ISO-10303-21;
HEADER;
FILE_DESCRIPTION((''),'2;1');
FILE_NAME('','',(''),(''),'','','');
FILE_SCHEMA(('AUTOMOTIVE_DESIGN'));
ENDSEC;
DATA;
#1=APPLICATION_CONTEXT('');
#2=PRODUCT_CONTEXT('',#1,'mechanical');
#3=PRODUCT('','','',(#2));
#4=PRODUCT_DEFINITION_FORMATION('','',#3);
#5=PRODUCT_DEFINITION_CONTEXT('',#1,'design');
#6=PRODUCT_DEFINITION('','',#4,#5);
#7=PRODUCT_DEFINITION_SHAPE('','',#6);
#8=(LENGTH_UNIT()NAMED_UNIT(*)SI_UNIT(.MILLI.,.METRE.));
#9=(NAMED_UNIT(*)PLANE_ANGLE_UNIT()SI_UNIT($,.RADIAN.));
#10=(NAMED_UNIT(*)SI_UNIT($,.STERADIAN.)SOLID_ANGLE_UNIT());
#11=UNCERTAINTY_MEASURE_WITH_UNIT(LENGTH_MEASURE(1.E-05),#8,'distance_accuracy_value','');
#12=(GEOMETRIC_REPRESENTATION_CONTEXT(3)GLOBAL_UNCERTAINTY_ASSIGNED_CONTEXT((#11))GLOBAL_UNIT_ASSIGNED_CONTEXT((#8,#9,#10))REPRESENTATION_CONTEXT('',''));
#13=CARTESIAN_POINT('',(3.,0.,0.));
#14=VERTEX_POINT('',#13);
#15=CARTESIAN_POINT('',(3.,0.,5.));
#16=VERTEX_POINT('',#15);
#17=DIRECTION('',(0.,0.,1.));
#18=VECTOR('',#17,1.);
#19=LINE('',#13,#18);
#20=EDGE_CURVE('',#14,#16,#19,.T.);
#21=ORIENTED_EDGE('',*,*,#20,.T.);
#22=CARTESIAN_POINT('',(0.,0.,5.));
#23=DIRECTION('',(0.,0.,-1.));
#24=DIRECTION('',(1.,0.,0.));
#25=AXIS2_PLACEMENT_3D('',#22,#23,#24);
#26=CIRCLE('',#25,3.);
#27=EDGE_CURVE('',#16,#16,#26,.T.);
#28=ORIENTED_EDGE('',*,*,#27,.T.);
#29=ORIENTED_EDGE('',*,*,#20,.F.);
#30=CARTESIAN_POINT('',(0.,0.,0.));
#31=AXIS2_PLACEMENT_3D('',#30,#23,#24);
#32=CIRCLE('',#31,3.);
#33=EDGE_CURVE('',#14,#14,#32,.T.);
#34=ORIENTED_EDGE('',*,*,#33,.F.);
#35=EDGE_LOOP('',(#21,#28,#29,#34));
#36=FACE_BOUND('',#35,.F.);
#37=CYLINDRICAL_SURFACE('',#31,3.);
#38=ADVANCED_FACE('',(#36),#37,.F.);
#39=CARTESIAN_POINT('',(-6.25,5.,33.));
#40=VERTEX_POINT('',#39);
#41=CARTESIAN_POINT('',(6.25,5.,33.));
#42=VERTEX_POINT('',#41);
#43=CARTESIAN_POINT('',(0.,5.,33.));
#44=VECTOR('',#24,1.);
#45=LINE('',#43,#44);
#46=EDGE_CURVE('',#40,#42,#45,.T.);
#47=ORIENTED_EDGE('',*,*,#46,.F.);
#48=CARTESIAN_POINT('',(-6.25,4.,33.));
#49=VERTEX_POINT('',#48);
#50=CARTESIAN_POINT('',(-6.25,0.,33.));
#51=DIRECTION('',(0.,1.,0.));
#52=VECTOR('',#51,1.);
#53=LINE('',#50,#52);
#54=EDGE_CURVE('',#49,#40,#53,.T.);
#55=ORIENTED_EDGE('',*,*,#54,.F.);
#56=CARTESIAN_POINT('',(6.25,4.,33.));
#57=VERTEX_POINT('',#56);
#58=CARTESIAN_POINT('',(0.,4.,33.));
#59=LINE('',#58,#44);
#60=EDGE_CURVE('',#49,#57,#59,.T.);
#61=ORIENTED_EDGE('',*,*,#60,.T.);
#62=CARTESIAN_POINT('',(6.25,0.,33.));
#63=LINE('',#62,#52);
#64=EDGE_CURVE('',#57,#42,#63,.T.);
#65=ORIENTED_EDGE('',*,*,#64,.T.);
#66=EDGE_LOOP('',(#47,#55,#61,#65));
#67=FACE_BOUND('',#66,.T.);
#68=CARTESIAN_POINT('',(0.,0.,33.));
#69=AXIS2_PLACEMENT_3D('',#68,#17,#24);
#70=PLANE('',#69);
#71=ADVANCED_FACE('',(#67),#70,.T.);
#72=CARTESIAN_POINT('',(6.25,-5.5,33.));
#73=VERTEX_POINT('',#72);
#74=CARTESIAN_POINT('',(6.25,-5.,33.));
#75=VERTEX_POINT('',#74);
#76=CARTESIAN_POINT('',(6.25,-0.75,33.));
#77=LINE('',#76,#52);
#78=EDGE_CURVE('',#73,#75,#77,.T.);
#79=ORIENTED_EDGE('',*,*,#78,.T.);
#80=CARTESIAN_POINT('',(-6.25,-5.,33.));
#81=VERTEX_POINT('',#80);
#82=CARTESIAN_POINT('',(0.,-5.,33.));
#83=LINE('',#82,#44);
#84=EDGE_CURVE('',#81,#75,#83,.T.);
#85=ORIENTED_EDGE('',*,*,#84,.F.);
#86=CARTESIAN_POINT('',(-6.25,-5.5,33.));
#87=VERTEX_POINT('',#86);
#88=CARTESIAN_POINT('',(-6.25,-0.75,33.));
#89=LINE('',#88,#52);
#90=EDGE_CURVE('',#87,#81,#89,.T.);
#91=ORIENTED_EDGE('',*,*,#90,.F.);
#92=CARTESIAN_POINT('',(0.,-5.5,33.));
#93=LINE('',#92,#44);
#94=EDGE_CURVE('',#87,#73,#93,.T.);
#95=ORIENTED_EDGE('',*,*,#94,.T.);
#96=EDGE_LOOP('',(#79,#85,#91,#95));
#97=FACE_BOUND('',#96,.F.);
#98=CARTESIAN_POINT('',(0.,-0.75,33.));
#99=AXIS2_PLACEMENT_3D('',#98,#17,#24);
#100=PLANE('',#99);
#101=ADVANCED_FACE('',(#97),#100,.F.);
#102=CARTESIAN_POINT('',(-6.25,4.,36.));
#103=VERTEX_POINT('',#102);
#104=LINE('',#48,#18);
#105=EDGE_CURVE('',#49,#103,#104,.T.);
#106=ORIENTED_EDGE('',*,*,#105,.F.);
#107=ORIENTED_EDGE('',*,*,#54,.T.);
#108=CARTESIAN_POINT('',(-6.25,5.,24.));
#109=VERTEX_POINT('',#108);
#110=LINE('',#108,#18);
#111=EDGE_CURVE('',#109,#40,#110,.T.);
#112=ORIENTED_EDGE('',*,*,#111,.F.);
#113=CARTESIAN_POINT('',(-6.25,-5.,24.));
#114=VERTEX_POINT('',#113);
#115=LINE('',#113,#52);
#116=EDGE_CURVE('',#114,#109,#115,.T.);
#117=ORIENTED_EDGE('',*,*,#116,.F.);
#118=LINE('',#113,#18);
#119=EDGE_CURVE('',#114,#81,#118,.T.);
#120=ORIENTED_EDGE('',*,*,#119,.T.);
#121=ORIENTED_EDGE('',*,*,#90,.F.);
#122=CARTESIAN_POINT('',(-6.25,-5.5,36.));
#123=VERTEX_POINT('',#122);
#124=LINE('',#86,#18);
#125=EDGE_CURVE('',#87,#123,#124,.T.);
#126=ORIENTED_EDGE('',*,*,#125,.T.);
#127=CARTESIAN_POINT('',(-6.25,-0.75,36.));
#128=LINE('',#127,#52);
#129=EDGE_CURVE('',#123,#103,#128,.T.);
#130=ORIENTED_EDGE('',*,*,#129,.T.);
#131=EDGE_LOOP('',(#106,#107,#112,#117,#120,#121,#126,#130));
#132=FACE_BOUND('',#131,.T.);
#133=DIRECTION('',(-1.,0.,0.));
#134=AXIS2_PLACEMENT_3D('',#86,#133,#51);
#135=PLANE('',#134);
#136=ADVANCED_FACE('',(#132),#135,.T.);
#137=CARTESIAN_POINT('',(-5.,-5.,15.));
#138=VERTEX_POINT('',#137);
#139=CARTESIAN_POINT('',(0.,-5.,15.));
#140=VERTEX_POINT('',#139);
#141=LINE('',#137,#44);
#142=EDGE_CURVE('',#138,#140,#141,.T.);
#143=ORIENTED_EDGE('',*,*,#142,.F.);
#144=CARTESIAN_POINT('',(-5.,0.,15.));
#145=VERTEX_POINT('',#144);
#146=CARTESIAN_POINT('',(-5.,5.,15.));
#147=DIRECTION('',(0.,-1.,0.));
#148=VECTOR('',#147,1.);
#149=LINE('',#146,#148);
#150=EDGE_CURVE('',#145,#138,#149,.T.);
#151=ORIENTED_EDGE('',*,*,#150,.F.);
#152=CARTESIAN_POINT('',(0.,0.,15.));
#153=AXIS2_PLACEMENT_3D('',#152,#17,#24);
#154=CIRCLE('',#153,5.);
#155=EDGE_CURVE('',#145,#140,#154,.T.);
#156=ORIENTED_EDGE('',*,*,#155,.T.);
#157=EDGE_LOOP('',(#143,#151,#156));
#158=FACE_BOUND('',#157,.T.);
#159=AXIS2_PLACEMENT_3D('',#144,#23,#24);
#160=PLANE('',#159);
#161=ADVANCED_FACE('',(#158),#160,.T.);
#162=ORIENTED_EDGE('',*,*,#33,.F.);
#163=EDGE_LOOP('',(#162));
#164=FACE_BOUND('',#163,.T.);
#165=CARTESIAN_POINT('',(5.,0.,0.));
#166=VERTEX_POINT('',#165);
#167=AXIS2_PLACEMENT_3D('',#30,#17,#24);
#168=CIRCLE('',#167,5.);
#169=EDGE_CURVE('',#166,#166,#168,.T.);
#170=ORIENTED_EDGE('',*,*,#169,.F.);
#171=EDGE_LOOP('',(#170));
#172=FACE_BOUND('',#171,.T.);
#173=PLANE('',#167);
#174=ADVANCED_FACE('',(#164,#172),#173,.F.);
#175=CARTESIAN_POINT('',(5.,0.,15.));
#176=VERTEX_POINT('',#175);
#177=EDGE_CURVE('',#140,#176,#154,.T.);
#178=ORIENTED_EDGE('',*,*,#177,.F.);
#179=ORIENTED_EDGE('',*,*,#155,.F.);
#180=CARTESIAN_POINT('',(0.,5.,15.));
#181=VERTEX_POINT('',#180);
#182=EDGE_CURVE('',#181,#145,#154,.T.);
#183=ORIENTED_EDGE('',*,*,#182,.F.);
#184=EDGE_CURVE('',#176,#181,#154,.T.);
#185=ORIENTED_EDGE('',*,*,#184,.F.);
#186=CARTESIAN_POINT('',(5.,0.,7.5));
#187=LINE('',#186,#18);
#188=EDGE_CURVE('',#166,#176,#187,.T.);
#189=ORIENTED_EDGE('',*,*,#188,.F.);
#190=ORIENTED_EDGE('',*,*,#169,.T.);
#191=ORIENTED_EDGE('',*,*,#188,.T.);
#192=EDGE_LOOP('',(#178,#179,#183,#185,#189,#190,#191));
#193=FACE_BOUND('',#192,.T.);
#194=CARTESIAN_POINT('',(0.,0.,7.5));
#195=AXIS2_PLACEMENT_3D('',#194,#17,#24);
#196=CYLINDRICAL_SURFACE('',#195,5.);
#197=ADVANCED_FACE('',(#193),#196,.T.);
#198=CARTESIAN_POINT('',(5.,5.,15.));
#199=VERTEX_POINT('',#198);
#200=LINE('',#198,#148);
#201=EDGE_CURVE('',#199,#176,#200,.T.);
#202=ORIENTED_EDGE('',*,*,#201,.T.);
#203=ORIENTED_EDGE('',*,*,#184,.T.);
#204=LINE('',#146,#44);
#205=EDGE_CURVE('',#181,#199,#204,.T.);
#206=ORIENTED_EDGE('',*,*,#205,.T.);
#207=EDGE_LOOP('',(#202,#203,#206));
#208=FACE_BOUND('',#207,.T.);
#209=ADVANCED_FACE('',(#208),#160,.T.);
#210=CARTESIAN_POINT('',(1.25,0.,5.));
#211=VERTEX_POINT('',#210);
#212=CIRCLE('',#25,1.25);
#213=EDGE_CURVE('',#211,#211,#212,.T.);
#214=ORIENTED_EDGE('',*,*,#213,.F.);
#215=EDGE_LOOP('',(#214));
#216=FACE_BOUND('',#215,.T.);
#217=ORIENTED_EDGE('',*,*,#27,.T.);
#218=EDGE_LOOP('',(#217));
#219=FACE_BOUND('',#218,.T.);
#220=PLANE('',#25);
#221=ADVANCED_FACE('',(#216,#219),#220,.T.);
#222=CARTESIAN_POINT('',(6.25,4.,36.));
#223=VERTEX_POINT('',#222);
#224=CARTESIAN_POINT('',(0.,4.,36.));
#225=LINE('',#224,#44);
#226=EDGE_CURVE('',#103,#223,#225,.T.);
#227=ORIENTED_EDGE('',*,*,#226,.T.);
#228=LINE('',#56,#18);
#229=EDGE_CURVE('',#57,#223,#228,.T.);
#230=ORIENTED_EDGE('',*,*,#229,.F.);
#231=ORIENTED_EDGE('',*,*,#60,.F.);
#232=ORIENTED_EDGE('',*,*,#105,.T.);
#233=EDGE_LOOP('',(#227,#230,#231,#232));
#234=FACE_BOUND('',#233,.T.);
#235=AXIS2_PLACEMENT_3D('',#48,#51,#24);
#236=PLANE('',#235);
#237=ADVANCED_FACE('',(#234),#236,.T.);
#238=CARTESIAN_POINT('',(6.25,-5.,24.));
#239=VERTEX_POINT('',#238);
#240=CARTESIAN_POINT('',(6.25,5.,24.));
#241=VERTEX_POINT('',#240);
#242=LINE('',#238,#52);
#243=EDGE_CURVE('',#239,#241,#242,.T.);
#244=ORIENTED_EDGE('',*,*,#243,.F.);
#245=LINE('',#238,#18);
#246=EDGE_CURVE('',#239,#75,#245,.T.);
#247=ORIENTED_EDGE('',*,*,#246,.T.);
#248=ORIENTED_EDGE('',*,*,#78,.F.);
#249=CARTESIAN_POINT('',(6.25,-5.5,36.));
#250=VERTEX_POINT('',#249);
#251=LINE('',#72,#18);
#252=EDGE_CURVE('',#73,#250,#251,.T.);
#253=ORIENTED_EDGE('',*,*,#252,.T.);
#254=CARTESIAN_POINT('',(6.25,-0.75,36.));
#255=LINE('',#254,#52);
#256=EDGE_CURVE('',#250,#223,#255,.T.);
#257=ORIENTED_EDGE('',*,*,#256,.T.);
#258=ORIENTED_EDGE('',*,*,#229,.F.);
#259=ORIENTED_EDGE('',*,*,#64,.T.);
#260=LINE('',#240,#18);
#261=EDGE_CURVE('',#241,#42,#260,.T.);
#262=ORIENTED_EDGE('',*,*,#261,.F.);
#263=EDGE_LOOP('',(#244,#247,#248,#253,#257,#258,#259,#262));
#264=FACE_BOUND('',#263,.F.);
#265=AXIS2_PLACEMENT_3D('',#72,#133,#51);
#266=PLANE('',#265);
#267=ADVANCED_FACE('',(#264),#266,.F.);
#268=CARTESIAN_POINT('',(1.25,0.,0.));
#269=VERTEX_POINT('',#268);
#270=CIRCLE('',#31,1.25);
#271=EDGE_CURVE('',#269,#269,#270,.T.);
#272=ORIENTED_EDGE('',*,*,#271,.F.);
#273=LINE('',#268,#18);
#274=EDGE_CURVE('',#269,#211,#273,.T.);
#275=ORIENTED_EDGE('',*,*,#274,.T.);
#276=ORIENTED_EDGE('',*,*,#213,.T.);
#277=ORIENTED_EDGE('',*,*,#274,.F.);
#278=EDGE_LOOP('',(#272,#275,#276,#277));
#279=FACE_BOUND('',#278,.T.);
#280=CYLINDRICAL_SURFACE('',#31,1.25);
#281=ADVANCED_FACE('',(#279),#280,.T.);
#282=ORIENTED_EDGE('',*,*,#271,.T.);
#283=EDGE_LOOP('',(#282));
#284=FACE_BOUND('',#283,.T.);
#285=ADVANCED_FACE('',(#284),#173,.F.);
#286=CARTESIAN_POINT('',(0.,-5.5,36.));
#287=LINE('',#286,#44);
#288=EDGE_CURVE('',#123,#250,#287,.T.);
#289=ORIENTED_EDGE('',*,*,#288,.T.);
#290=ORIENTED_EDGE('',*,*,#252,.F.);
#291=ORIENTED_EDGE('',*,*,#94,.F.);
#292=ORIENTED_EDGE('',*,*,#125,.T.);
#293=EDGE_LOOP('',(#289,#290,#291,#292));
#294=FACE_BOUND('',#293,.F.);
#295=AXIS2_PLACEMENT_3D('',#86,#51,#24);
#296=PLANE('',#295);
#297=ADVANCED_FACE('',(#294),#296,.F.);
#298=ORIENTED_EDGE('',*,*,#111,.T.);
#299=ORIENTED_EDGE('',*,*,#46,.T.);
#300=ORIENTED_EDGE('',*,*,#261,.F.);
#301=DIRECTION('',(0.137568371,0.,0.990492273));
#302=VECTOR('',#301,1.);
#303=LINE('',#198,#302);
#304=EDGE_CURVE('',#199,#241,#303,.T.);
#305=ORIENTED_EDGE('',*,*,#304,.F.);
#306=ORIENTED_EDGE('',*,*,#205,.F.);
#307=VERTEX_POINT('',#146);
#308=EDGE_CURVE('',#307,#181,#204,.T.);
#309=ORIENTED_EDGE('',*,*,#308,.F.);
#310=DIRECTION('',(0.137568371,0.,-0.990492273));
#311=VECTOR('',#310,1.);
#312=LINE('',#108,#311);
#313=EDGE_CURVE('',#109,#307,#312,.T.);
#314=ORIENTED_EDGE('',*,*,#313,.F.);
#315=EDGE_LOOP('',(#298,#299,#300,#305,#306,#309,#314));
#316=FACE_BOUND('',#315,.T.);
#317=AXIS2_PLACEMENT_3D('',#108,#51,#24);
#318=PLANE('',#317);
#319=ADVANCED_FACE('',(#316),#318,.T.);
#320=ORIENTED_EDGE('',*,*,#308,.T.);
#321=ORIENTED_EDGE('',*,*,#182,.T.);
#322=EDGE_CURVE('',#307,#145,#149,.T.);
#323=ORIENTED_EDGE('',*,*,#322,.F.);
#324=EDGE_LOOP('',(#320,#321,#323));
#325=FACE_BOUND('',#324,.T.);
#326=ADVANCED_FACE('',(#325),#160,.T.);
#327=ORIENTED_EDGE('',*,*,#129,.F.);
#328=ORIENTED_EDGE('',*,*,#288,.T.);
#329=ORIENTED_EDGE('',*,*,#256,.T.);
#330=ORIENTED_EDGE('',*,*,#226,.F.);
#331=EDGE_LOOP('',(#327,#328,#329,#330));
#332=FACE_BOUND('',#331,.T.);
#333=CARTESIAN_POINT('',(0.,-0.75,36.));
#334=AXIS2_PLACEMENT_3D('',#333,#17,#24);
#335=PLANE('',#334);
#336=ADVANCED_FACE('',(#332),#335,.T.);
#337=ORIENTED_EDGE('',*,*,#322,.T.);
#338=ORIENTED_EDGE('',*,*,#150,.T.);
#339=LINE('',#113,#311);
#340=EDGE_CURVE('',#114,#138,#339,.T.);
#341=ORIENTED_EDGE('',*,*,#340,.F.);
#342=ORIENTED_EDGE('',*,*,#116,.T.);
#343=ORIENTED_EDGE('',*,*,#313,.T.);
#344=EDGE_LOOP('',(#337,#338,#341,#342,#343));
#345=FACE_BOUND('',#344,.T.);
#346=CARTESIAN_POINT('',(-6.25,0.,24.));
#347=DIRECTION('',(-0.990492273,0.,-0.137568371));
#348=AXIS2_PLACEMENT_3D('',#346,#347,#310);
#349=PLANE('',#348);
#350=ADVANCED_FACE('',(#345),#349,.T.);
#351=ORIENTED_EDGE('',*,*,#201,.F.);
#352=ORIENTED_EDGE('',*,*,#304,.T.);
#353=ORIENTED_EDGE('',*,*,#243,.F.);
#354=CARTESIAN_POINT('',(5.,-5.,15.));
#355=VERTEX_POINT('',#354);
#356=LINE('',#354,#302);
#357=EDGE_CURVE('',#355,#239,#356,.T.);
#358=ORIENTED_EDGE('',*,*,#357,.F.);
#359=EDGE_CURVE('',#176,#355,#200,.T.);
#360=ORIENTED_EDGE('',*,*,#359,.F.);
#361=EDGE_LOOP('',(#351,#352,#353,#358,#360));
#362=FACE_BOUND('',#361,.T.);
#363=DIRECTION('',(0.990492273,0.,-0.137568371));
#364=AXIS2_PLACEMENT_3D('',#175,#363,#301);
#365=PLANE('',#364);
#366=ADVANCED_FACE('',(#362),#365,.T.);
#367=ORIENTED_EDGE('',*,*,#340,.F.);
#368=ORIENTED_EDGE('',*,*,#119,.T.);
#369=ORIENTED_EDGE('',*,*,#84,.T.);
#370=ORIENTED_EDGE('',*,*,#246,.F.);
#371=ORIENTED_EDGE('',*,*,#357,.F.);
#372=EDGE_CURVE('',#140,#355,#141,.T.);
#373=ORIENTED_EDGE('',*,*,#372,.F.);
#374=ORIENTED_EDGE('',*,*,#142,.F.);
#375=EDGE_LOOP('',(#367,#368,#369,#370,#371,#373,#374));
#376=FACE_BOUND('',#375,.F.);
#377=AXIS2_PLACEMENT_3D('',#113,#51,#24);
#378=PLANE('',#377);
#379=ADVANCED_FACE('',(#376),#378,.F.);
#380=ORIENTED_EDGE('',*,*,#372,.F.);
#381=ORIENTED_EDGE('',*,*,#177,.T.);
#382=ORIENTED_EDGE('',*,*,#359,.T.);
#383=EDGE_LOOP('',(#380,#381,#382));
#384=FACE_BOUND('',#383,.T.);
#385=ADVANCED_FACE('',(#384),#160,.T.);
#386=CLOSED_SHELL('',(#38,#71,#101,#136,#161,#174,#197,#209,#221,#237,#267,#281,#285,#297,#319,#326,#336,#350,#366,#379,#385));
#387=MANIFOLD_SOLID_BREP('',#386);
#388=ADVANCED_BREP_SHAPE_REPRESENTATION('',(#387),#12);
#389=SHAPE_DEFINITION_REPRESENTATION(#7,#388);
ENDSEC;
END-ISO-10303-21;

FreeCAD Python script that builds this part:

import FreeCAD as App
import Part
import Sketcher
Q = App.Units.Quantity


def add_polygon(sketch, points):
    """Adds a closed chain of lines whose ends are joined by coincident constraints."""
    first, n = sketch.GeometryCount, len(points)
    for a, b in zip(points, points[1:] + points[:1]):
        sketch.addGeometry(Part.LineSegment(App.Vector(*a, 0), App.Vector(*b, 0)), False)
    for i in range(n):
        sketch.addConstraint(Sketcher.Constraint("Coincident", first + i, 2, first + (i + 1) % n, 1))

doc = App.newDocument("Part")
body = doc.addObject("PartDesign::Body", "Body")

sketch1 = doc.addObject("Sketcher::SketchObject", "Sketch")
body.addObject(sketch1)
sketch1.AttachmentSupport = (doc.XZ_Plane, [""])
sketch1.MapMode = "FlatFace"
add_polygon(sketch1, [(0, 15), (0, 0), (5, 0), (5, 15)])
sketch1.addConstraint([
    Sketcher.Constraint("Vertical", 0),
    Sketcher.Constraint("Horizontal", 1),
    Sketcher.Constraint("Vertical", 2),
    Sketcher.Constraint("Horizontal", 3),
    Sketcher.Constraint("Coincident", 0, 2, -1, 1),
    Sketcher.Constraint("DistanceX", 1, 1, 1, 2, Q("5 mm")),
    Sketcher.Constraint("DistanceY", 0, 2, 0, 1, Q("15 mm")),
])
revolution = doc.addObject("PartDesign::Revolution", "Revolution")
body.addObject(revolution)
revolution.Profile = sketch1
revolution.ReferenceAxis = (sketch1, ["V_Axis"])
revolution.Angle = 360

sketch2 = doc.addObject("Sketcher::SketchObject", "Sketch001")
body.addObject(sketch2)
sketch2.AttachmentSupport = (doc.XY_Plane, [""])
sketch2.MapMode = "FlatFace"
sketch2.addGeometry([
    Part.Circle(App.Vector(0, 0, 0), App.Vector(0, 0, 1), 3),
    Part.Circle(App.Vector(0, 0, 0), App.Vector(0, 0, 1), 1.2),
], False)
sketch2.addConstraint([
    Sketcher.Constraint("Coincident", 0, 3, -1, 1),
    Sketcher.Constraint("Coincident", 1, 3, -1, 1),
    Sketcher.Constraint("Diameter", 0, Q("6 mm")),
    Sketcher.Constraint("Diameter", 1, Q("2.5 mm")),
])
pocket1 = doc.addObject("PartDesign::Pocket", "Pocket")
body.addObject(pocket1)
pocket1.Profile = sketch2
pocket1.Length = 5
pocket1.Reversed = True

sketch3 = doc.addObject("Sketcher::SketchObject", "Sketch002")
body.addObject(sketch3)
sketch3.AttachmentSupport = (doc.XZ_Plane, [""])
sketch3.MapMode = "FlatFace"
add_polygon(sketch3, [(-6, 24), (-5, 15), (5, 15), (6, 24)])
sketch3.addConstraint([
    Sketcher.Constraint("Horizontal", 1),
    Sketcher.Constraint("Horizontal", 3),
    Sketcher.Constraint("Equal", 0, 2),
    Sketcher.Constraint("DistanceX", 1, 1, 1, 2, Q("10 mm")),
    Sketcher.Constraint("DistanceX", 3, 2, 3, 1, Q("12.5 mm")),
    Sketcher.Constraint("DistanceX", 0, 2, -1, 1, Q("5 mm")),
    Sketcher.Constraint("DistanceY", -1, 1, 0, 2, Q("15 mm")),
    Sketcher.Constraint("DistanceY", -1, 1, 2, 2, Q("24 mm")),
])
pad1 = doc.addObject("PartDesign::Pad", "Pad")
body.addObject(pad1)
pad1.Profile = sketch3
pad1.Length = 10
pad1.Midplane = True

sketch4 = doc.addObject("Sketcher::SketchObject", "Sketch003")
body.addObject(sketch4)
sketch4.AttachmentSupport = (doc.XY_Plane, [""])
sketch4.MapMode = "FlatFace"
sketch4.AttachmentOffset = App.Placement(App.Vector(0, 0, 24), App.Rotation())
add_polygon(sketch4, [(-6, 5), (-6, -5), (6, -5), (6, 5)])
sketch4.addConstraint([
    Sketcher.Constraint("Vertical", 0),
    Sketcher.Constraint("Horizontal", 1),
    Sketcher.Constraint("Vertical", 2),
    Sketcher.Constraint("Horizontal", 3),
    Sketcher.Constraint("Symmetric", 0, 2, 2, 2, -1, 1),
    Sketcher.Constraint("DistanceY", 0, 2, 0, 1, Q("10 mm")),
    Sketcher.Constraint("DistanceX", 1, 1, 1, 2, Q("12.5 mm")),
])
pad2 = doc.addObject("PartDesign::Pad", "Pad001")
body.addObject(pad2)
pad2.Profile = sketch4
pad2.Length = 9

sketch5 = doc.addObject("Sketcher::SketchObject", "Sketch004")
body.addObject(sketch5)
sketch5.AttachmentSupport = (doc.XY_Plane, [""])
sketch5.MapMode = "FlatFace"
sketch5.AttachmentOffset = App.Placement(App.Vector(0, 0, 33), App.Rotation())
add_polygon(sketch5, [(-6, 4), (-6, -6), (6, -6), (6, 4)])
sketch5.addConstraint([
    Sketcher.Constraint("Vertical", 0),
    Sketcher.Constraint("Horizontal", 1),
    Sketcher.Constraint("Vertical", 2),
    Sketcher.Constraint("Horizontal", 3),
    Sketcher.Constraint("DistanceX", 1, 1, 1, 2, Q("12.5 mm")),
    Sketcher.Constraint("DistanceY", 0, 2, 0, 1, Q("9.5 mm")),
    Sketcher.Constraint("DistanceY", -1, 1, 2, 2, Q("4 mm")),
    Sketcher.Constraint("DistanceX", 0, 2, -1, 1, Q("6.25 mm")),
])
pad3 = doc.addObject("PartDesign::Pad", "Pad002")
body.addObject(pad3)
pad3.Profile = sketch5
pad3.Length = 3

doc.recompute()
